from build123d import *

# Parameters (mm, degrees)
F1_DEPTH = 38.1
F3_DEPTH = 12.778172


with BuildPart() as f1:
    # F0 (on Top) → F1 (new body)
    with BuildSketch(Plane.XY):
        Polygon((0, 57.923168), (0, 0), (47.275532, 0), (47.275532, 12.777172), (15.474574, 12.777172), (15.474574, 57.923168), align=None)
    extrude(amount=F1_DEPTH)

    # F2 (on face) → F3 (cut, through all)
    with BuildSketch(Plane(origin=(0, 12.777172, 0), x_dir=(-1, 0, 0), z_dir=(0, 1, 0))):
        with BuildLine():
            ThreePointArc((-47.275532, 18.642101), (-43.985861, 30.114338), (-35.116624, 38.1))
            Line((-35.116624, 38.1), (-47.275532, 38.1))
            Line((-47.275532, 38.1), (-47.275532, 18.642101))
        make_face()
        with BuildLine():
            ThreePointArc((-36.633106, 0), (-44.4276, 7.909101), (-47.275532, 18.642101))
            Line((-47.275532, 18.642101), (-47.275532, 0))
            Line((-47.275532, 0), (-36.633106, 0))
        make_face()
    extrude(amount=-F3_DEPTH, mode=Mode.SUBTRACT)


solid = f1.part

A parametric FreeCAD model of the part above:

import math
import FreeCAD as App
import Part
import Sketcher
from FreeCAD import Vector
Q = App.Units.Quantity


def add_polygon(sketch, points):
    """Adds a closed chain of lines whose ends are joined by coincident constraints."""
    first, n = sketch.GeometryCount, len(points)
    for a, b in zip(points, points[1:] + points[:1]):
        sketch.addGeometry(Part.LineSegment(App.Vector(*a, 0), App.Vector(*b, 0)), False)
    for i in range(n):
        sketch.addConstraint(Sketcher.Constraint("Coincident", first + i, 2, first + (i + 1) % n, 1))

doc = App.newDocument("Part")
body = doc.addObject("PartDesign::Body", "Body")

sketch1 = body.newObject("Sketcher::SketchObject", "Sketch")
sketch1.AttachmentSupport = (doc.getObject("XY_Plane"), [""])
sketch1.MapMode = "FlatFace"
add_polygon(sketch1, [(0, 58), (0, 0), (47, 0), (47, 13), (15, 13), (15, 58)])
sketch1.addConstraint([
    Sketcher.Constraint("Vertical", 0),
    Sketcher.Constraint("Horizontal", 1),
    Sketcher.Constraint("Vertical", 2),
    Sketcher.Constraint("Horizontal", 3),
    Sketcher.Constraint("Vertical", 4),
    Sketcher.Constraint("Horizontal", 5),
    Sketcher.Constraint("Coincident", 0, 2, -1, 1),
    Sketcher.Constraint("DistanceX", 1, 1, 1, 2, Q("47.275532 mm")),
    Sketcher.Constraint("DistanceX", 3, 2, 3, 1, Q("31.800958 mm")),
    Sketcher.Constraint("DistanceY", 0, 2, 0, 1, Q("57.923168 mm")),
    Sketcher.Constraint("DistanceY", 2, 1, 2, 2, Q("12.777172 mm")),
])
pad1 = body.newObject("PartDesign::Pad", "Pad")
pad1.Profile = sketch1
pad1.Length = Q("1.5 in")

sketch2 = body.newObject("Sketcher::SketchObject", "Sketch001")
sketch2.AttachmentSupport = (doc.getObject("XZ_Plane"), [""])
sketch2.MapMode = "FlatFace"
sketch2.AttachmentOffset = App.Placement(Vector(0, 0, -12.777172), App.Rotation())
sketch2.addGeometry([
    Part.ArcOfCircle(Part.Circle(Vector(26, 19, 0), Vector(0, 0, 1), 22), math.radians(0), math.radians(64)),
    Part.LineSegment(Vector(35, 38, 0), Vector(47, 38, 0)),
    Part.LineSegment(Vector(47, 38, 0), Vector(47, 19, 0)),
    Part.ArcOfCircle(Part.Circle(Vector(26, 19, 0), Vector(0, 0, 1), 22), math.radians(-59), math.radians(0)),
    Part.LineSegment(Vector(47, 19, 0), Vector(47, 0, 0)),
    Part.LineSegment(Vector(47, 0, 0), Vector(37, 0, 0)),
], False)
sketch2.addConstraint([
    Sketcher.Constraint("Coincident", 0, 2, 1, 1),
    Sketcher.Constraint("Coincident", 1, 2, 2, 1),
    Sketcher.Constraint("Tangent", 2, 2, 0, 1),
    Sketcher.Constraint("Tangent", 3, 2, 4, 1),
    Sketcher.Constraint("Coincident", 4, 2, 5, 1),
    Sketcher.Constraint("Coincident", 5, 2, 3, 1),
    Sketcher.Constraint("Horizontal", 1),
    Sketcher.Constraint("Vertical", 2),
    Sketcher.Constraint("Vertical", 4),
    Sketcher.Constraint("Horizontal", 5),
    Sketcher.Constraint("Coincident", 3, 3, 0, 3),
    Sketcher.Constraint("Equal", 0, 3),
    Sketcher.Constraint("PointOnObject", 4, 2, -1),
    Sketcher.Constraint("DistanceY", -1, 1, 0, 2, Q("1.5 in")),
    Sketcher.Constraint("Radius", 0, Q("21.648689 mm")),
    Sketcher.Constraint("DistanceY", 2, 2, 2, 1, Q("19.457899 mm")),
    Sketcher.Constraint("DistanceX", -1, 1, 1, 2, Q("47.275532 mm")),
])
pocket1 = body.newObject("PartDesign::Pocket", "Pocket")
pocket1.Profile = sketch2
pocket1.Type = "ThroughAll"
pocket1.Reversed = True

doc.recompute()
